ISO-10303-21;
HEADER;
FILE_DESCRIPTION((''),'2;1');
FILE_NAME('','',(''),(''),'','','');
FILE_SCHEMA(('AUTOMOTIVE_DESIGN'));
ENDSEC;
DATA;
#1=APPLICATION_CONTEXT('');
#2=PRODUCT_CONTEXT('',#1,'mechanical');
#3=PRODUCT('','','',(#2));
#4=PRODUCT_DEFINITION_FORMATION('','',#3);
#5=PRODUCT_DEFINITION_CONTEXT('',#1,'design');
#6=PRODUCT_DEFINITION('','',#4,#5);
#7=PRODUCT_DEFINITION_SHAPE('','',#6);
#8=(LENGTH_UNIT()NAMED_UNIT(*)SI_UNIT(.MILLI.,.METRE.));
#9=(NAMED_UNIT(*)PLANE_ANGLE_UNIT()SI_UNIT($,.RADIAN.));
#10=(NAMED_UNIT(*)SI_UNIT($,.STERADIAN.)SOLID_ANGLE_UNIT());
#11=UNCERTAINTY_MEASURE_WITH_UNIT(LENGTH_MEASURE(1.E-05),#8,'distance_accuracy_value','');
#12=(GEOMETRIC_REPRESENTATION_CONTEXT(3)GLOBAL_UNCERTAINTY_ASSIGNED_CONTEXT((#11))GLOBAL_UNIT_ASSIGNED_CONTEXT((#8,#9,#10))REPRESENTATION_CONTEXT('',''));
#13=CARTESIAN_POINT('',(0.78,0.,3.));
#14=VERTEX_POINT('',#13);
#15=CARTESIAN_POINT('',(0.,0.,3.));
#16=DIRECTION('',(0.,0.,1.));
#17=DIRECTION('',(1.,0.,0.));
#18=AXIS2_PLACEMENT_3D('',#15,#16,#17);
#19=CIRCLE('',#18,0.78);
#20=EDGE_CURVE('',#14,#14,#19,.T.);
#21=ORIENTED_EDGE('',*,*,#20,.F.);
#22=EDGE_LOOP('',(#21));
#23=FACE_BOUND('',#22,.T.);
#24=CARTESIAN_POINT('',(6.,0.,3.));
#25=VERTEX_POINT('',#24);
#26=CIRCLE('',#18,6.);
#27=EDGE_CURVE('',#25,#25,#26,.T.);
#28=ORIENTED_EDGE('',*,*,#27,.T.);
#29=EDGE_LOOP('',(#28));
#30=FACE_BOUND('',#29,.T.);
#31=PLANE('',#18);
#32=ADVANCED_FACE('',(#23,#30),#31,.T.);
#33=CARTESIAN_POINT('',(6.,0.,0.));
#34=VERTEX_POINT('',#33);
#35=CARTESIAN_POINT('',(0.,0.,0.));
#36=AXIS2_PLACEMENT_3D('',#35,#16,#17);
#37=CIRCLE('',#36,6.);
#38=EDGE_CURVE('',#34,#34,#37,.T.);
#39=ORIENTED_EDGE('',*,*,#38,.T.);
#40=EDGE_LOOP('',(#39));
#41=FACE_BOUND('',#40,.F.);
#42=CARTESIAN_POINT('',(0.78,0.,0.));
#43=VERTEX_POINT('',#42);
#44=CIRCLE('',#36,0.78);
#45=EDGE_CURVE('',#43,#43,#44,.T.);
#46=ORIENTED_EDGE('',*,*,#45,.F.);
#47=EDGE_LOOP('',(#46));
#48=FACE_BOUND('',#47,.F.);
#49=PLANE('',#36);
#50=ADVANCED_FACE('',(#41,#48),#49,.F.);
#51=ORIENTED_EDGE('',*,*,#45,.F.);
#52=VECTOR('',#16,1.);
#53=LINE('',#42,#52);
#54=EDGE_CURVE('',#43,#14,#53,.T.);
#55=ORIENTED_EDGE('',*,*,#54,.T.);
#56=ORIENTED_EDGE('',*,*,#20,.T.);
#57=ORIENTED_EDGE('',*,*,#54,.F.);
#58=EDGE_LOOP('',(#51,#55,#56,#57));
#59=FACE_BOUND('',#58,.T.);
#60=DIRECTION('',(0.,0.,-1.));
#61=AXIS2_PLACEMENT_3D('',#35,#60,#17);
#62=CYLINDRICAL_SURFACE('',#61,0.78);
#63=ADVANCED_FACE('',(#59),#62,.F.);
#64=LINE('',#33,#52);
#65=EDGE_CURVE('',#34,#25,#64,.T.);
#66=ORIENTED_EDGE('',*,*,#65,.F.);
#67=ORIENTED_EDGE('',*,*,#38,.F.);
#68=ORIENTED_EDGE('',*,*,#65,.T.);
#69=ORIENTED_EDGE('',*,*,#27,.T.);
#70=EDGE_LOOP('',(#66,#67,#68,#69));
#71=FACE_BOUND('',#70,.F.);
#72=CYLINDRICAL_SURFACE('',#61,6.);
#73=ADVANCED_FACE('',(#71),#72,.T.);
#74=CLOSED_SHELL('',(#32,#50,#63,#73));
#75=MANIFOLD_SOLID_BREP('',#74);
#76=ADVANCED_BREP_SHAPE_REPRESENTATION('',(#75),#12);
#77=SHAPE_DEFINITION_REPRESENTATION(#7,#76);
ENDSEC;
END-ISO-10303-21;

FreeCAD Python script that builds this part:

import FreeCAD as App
import Part
import Sketcher
from FreeCAD import Vector

doc = App.newDocument("Part")
body = doc.addObject("PartDesign::Body", "Body")

# Sketch on XY plane
sketch1 = body.newObject("Sketcher::SketchObject", "Sketch")
sketch1.AttachmentSupport = (doc.getObject("XY_Plane"), [""])
sketch1.MapMode = "FlatFace"
sketch1.addGeometry(Part.Circle(Vector(0, 0, 0), Vector(0, 0, 1), 6), False)
sketch1.addGeometry(Part.Circle(Vector(0, 0, 0), Vector(0, 0, 1), 0.8), False)
sketch1.addConstraint(Sketcher.Constraint("Coincident", 0, 3, -1, 1))
sketch1.addConstraint(Sketcher.Constraint("Coincident", 1, 3, -1, 1))
sketch1.addConstraint(Sketcher.Constraint("Diameter", 0, 12.0))
sketch1.addConstraint(Sketcher.Constraint("Diameter", 1, 1.56))
pad1 = body.newObject("PartDesign::Pad", "Pad")
pad1.Profile = sketch1
pad1.Length = 3

doc.recompute()
